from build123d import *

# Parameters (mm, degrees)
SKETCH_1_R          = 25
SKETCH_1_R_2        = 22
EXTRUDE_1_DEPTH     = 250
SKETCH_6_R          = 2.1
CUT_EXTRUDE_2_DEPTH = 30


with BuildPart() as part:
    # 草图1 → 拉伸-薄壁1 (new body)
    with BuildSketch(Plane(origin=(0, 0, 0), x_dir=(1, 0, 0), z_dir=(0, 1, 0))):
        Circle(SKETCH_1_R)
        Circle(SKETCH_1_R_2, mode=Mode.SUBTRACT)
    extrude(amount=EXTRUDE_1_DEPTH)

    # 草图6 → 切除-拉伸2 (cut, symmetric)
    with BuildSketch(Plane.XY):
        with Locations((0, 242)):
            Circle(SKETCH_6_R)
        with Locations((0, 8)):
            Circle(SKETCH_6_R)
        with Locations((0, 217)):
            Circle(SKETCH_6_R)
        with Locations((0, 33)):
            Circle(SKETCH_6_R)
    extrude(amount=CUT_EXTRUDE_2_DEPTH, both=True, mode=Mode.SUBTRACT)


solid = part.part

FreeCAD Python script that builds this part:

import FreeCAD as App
import Part
import Sketcher
Q = App.Units.Quantity

doc = App.newDocument("Part")
params = doc.addObject("Spreadsheet::Sheet", "Params")
for row, (alias, value) in enumerate([
    ("sketch1_diameter", "50 mm"),
    ("sketch1_diameter2", "44 mm"),
    ("pad1_length", "250 mm"),
    ("sketch2_diameter", "4.2 mm"),
    ("pocket1_length", "60 mm"),
], start=1):
    params.set(f"A{row}", alias)
    params.set(f"B{row}", "=" + value)
    params.setAlias(f"B{row}", alias)

body = doc.addObject("PartDesign::Body", "Body")

# Sketch on XZ plane
sketch1 = doc.addObject("Sketcher::SketchObject", "Sketch")
body.addObject(sketch1)
sketch1.AttachmentSupport = (doc.XZ_Plane, [""])
sketch1.MapMode = "FlatFace"
sketch1.addGeometry([
    Part.Circle(App.Vector(0, 0, 0), App.Vector(0, 0, 1), 25),
    Part.Circle(App.Vector(0, 0, 0), App.Vector(0, 0, 1), 22),
], False)
sketch1.addConstraint([
    Sketcher.Constraint("Coincident", 0, 3, -1, 1),
    Sketcher.Constraint("Coincident", 1, 3, -1, 1),
    Sketcher.Constraint("Diameter", 0, Q("50 mm")),
    Sketcher.Constraint("Diameter", 1, Q("44 mm")),
])
sketch1.setExpression("Constraints[2]", "Params.sketch1_diameter")
sketch1.setExpression("Constraints[3]", "Params.sketch1_diameter2")
pad1 = doc.addObject("PartDesign::Pad", "Pad")
body.addObject(pad1)
pad1.Profile = sketch1
pad1.setExpression("Length", "Params.pad1_length")
pad1.Reversed = True

# Sketch on XY plane
sketch2 = doc.addObject("Sketcher::SketchObject", "Sketch001")
body.addObject(sketch2)
sketch2.AttachmentSupport = (doc.XY_Plane, [""])
sketch2.MapMode = "FlatFace"
sketch2.addGeometry([
    Part.Circle(App.Vector(0, 242, 0), App.Vector(0, 0, 1), 2.1),
    Part.Circle(App.Vector(0, 8, 0), App.Vector(0, 0, 1), 2.1),
    Part.Circle(App.Vector(0, 217, 0), App.Vector(0, 0, 1), 2.1),
    Part.Circle(App.Vector(0, 33, 0), App.Vector(0, 0, 1), 2.1),
], False)
sketch2.addConstraint([
    Sketcher.Constraint("Equal", 0, 1),
    Sketcher.Constraint("Equal", 1, 2),
    Sketcher.Constraint("Equal", 2, 3),
    Sketcher.Constraint("PointOnObject", 0, 3, -2),
    Sketcher.Constraint("PointOnObject", 1, 3, -2),
    Sketcher.Constraint("PointOnObject", 2, 3, -2),
    Sketcher.Constraint("PointOnObject", 3, 3, -2),
    Sketcher.Constraint("Diameter", 0, Q("4.2 mm")),
    Sketcher.Constraint("DistanceY", -1, 1, 0, 3, Q("242 mm")),
    Sketcher.Constraint("DistanceY", -1, 1, 1, 3, Q("8 mm")),
    Sketcher.Constraint("DistanceY", -1, 1, 2, 3, Q("217 mm")),
    Sketcher.Constraint("DistanceY", -1, 1, 3, 3, Q("33 mm")),
])
sketch2.setExpression("Constraints[7]", "Params.sketch2_diameter")
pocket1 = doc.addObject("PartDesign::Pocket", "Pocket")
body.addObject(pocket1)
pocket1.Profile = sketch2
pocket1.setExpression("Length", "Params.pocket1_length")
pocket1.Midplane = True

doc.recompute()
